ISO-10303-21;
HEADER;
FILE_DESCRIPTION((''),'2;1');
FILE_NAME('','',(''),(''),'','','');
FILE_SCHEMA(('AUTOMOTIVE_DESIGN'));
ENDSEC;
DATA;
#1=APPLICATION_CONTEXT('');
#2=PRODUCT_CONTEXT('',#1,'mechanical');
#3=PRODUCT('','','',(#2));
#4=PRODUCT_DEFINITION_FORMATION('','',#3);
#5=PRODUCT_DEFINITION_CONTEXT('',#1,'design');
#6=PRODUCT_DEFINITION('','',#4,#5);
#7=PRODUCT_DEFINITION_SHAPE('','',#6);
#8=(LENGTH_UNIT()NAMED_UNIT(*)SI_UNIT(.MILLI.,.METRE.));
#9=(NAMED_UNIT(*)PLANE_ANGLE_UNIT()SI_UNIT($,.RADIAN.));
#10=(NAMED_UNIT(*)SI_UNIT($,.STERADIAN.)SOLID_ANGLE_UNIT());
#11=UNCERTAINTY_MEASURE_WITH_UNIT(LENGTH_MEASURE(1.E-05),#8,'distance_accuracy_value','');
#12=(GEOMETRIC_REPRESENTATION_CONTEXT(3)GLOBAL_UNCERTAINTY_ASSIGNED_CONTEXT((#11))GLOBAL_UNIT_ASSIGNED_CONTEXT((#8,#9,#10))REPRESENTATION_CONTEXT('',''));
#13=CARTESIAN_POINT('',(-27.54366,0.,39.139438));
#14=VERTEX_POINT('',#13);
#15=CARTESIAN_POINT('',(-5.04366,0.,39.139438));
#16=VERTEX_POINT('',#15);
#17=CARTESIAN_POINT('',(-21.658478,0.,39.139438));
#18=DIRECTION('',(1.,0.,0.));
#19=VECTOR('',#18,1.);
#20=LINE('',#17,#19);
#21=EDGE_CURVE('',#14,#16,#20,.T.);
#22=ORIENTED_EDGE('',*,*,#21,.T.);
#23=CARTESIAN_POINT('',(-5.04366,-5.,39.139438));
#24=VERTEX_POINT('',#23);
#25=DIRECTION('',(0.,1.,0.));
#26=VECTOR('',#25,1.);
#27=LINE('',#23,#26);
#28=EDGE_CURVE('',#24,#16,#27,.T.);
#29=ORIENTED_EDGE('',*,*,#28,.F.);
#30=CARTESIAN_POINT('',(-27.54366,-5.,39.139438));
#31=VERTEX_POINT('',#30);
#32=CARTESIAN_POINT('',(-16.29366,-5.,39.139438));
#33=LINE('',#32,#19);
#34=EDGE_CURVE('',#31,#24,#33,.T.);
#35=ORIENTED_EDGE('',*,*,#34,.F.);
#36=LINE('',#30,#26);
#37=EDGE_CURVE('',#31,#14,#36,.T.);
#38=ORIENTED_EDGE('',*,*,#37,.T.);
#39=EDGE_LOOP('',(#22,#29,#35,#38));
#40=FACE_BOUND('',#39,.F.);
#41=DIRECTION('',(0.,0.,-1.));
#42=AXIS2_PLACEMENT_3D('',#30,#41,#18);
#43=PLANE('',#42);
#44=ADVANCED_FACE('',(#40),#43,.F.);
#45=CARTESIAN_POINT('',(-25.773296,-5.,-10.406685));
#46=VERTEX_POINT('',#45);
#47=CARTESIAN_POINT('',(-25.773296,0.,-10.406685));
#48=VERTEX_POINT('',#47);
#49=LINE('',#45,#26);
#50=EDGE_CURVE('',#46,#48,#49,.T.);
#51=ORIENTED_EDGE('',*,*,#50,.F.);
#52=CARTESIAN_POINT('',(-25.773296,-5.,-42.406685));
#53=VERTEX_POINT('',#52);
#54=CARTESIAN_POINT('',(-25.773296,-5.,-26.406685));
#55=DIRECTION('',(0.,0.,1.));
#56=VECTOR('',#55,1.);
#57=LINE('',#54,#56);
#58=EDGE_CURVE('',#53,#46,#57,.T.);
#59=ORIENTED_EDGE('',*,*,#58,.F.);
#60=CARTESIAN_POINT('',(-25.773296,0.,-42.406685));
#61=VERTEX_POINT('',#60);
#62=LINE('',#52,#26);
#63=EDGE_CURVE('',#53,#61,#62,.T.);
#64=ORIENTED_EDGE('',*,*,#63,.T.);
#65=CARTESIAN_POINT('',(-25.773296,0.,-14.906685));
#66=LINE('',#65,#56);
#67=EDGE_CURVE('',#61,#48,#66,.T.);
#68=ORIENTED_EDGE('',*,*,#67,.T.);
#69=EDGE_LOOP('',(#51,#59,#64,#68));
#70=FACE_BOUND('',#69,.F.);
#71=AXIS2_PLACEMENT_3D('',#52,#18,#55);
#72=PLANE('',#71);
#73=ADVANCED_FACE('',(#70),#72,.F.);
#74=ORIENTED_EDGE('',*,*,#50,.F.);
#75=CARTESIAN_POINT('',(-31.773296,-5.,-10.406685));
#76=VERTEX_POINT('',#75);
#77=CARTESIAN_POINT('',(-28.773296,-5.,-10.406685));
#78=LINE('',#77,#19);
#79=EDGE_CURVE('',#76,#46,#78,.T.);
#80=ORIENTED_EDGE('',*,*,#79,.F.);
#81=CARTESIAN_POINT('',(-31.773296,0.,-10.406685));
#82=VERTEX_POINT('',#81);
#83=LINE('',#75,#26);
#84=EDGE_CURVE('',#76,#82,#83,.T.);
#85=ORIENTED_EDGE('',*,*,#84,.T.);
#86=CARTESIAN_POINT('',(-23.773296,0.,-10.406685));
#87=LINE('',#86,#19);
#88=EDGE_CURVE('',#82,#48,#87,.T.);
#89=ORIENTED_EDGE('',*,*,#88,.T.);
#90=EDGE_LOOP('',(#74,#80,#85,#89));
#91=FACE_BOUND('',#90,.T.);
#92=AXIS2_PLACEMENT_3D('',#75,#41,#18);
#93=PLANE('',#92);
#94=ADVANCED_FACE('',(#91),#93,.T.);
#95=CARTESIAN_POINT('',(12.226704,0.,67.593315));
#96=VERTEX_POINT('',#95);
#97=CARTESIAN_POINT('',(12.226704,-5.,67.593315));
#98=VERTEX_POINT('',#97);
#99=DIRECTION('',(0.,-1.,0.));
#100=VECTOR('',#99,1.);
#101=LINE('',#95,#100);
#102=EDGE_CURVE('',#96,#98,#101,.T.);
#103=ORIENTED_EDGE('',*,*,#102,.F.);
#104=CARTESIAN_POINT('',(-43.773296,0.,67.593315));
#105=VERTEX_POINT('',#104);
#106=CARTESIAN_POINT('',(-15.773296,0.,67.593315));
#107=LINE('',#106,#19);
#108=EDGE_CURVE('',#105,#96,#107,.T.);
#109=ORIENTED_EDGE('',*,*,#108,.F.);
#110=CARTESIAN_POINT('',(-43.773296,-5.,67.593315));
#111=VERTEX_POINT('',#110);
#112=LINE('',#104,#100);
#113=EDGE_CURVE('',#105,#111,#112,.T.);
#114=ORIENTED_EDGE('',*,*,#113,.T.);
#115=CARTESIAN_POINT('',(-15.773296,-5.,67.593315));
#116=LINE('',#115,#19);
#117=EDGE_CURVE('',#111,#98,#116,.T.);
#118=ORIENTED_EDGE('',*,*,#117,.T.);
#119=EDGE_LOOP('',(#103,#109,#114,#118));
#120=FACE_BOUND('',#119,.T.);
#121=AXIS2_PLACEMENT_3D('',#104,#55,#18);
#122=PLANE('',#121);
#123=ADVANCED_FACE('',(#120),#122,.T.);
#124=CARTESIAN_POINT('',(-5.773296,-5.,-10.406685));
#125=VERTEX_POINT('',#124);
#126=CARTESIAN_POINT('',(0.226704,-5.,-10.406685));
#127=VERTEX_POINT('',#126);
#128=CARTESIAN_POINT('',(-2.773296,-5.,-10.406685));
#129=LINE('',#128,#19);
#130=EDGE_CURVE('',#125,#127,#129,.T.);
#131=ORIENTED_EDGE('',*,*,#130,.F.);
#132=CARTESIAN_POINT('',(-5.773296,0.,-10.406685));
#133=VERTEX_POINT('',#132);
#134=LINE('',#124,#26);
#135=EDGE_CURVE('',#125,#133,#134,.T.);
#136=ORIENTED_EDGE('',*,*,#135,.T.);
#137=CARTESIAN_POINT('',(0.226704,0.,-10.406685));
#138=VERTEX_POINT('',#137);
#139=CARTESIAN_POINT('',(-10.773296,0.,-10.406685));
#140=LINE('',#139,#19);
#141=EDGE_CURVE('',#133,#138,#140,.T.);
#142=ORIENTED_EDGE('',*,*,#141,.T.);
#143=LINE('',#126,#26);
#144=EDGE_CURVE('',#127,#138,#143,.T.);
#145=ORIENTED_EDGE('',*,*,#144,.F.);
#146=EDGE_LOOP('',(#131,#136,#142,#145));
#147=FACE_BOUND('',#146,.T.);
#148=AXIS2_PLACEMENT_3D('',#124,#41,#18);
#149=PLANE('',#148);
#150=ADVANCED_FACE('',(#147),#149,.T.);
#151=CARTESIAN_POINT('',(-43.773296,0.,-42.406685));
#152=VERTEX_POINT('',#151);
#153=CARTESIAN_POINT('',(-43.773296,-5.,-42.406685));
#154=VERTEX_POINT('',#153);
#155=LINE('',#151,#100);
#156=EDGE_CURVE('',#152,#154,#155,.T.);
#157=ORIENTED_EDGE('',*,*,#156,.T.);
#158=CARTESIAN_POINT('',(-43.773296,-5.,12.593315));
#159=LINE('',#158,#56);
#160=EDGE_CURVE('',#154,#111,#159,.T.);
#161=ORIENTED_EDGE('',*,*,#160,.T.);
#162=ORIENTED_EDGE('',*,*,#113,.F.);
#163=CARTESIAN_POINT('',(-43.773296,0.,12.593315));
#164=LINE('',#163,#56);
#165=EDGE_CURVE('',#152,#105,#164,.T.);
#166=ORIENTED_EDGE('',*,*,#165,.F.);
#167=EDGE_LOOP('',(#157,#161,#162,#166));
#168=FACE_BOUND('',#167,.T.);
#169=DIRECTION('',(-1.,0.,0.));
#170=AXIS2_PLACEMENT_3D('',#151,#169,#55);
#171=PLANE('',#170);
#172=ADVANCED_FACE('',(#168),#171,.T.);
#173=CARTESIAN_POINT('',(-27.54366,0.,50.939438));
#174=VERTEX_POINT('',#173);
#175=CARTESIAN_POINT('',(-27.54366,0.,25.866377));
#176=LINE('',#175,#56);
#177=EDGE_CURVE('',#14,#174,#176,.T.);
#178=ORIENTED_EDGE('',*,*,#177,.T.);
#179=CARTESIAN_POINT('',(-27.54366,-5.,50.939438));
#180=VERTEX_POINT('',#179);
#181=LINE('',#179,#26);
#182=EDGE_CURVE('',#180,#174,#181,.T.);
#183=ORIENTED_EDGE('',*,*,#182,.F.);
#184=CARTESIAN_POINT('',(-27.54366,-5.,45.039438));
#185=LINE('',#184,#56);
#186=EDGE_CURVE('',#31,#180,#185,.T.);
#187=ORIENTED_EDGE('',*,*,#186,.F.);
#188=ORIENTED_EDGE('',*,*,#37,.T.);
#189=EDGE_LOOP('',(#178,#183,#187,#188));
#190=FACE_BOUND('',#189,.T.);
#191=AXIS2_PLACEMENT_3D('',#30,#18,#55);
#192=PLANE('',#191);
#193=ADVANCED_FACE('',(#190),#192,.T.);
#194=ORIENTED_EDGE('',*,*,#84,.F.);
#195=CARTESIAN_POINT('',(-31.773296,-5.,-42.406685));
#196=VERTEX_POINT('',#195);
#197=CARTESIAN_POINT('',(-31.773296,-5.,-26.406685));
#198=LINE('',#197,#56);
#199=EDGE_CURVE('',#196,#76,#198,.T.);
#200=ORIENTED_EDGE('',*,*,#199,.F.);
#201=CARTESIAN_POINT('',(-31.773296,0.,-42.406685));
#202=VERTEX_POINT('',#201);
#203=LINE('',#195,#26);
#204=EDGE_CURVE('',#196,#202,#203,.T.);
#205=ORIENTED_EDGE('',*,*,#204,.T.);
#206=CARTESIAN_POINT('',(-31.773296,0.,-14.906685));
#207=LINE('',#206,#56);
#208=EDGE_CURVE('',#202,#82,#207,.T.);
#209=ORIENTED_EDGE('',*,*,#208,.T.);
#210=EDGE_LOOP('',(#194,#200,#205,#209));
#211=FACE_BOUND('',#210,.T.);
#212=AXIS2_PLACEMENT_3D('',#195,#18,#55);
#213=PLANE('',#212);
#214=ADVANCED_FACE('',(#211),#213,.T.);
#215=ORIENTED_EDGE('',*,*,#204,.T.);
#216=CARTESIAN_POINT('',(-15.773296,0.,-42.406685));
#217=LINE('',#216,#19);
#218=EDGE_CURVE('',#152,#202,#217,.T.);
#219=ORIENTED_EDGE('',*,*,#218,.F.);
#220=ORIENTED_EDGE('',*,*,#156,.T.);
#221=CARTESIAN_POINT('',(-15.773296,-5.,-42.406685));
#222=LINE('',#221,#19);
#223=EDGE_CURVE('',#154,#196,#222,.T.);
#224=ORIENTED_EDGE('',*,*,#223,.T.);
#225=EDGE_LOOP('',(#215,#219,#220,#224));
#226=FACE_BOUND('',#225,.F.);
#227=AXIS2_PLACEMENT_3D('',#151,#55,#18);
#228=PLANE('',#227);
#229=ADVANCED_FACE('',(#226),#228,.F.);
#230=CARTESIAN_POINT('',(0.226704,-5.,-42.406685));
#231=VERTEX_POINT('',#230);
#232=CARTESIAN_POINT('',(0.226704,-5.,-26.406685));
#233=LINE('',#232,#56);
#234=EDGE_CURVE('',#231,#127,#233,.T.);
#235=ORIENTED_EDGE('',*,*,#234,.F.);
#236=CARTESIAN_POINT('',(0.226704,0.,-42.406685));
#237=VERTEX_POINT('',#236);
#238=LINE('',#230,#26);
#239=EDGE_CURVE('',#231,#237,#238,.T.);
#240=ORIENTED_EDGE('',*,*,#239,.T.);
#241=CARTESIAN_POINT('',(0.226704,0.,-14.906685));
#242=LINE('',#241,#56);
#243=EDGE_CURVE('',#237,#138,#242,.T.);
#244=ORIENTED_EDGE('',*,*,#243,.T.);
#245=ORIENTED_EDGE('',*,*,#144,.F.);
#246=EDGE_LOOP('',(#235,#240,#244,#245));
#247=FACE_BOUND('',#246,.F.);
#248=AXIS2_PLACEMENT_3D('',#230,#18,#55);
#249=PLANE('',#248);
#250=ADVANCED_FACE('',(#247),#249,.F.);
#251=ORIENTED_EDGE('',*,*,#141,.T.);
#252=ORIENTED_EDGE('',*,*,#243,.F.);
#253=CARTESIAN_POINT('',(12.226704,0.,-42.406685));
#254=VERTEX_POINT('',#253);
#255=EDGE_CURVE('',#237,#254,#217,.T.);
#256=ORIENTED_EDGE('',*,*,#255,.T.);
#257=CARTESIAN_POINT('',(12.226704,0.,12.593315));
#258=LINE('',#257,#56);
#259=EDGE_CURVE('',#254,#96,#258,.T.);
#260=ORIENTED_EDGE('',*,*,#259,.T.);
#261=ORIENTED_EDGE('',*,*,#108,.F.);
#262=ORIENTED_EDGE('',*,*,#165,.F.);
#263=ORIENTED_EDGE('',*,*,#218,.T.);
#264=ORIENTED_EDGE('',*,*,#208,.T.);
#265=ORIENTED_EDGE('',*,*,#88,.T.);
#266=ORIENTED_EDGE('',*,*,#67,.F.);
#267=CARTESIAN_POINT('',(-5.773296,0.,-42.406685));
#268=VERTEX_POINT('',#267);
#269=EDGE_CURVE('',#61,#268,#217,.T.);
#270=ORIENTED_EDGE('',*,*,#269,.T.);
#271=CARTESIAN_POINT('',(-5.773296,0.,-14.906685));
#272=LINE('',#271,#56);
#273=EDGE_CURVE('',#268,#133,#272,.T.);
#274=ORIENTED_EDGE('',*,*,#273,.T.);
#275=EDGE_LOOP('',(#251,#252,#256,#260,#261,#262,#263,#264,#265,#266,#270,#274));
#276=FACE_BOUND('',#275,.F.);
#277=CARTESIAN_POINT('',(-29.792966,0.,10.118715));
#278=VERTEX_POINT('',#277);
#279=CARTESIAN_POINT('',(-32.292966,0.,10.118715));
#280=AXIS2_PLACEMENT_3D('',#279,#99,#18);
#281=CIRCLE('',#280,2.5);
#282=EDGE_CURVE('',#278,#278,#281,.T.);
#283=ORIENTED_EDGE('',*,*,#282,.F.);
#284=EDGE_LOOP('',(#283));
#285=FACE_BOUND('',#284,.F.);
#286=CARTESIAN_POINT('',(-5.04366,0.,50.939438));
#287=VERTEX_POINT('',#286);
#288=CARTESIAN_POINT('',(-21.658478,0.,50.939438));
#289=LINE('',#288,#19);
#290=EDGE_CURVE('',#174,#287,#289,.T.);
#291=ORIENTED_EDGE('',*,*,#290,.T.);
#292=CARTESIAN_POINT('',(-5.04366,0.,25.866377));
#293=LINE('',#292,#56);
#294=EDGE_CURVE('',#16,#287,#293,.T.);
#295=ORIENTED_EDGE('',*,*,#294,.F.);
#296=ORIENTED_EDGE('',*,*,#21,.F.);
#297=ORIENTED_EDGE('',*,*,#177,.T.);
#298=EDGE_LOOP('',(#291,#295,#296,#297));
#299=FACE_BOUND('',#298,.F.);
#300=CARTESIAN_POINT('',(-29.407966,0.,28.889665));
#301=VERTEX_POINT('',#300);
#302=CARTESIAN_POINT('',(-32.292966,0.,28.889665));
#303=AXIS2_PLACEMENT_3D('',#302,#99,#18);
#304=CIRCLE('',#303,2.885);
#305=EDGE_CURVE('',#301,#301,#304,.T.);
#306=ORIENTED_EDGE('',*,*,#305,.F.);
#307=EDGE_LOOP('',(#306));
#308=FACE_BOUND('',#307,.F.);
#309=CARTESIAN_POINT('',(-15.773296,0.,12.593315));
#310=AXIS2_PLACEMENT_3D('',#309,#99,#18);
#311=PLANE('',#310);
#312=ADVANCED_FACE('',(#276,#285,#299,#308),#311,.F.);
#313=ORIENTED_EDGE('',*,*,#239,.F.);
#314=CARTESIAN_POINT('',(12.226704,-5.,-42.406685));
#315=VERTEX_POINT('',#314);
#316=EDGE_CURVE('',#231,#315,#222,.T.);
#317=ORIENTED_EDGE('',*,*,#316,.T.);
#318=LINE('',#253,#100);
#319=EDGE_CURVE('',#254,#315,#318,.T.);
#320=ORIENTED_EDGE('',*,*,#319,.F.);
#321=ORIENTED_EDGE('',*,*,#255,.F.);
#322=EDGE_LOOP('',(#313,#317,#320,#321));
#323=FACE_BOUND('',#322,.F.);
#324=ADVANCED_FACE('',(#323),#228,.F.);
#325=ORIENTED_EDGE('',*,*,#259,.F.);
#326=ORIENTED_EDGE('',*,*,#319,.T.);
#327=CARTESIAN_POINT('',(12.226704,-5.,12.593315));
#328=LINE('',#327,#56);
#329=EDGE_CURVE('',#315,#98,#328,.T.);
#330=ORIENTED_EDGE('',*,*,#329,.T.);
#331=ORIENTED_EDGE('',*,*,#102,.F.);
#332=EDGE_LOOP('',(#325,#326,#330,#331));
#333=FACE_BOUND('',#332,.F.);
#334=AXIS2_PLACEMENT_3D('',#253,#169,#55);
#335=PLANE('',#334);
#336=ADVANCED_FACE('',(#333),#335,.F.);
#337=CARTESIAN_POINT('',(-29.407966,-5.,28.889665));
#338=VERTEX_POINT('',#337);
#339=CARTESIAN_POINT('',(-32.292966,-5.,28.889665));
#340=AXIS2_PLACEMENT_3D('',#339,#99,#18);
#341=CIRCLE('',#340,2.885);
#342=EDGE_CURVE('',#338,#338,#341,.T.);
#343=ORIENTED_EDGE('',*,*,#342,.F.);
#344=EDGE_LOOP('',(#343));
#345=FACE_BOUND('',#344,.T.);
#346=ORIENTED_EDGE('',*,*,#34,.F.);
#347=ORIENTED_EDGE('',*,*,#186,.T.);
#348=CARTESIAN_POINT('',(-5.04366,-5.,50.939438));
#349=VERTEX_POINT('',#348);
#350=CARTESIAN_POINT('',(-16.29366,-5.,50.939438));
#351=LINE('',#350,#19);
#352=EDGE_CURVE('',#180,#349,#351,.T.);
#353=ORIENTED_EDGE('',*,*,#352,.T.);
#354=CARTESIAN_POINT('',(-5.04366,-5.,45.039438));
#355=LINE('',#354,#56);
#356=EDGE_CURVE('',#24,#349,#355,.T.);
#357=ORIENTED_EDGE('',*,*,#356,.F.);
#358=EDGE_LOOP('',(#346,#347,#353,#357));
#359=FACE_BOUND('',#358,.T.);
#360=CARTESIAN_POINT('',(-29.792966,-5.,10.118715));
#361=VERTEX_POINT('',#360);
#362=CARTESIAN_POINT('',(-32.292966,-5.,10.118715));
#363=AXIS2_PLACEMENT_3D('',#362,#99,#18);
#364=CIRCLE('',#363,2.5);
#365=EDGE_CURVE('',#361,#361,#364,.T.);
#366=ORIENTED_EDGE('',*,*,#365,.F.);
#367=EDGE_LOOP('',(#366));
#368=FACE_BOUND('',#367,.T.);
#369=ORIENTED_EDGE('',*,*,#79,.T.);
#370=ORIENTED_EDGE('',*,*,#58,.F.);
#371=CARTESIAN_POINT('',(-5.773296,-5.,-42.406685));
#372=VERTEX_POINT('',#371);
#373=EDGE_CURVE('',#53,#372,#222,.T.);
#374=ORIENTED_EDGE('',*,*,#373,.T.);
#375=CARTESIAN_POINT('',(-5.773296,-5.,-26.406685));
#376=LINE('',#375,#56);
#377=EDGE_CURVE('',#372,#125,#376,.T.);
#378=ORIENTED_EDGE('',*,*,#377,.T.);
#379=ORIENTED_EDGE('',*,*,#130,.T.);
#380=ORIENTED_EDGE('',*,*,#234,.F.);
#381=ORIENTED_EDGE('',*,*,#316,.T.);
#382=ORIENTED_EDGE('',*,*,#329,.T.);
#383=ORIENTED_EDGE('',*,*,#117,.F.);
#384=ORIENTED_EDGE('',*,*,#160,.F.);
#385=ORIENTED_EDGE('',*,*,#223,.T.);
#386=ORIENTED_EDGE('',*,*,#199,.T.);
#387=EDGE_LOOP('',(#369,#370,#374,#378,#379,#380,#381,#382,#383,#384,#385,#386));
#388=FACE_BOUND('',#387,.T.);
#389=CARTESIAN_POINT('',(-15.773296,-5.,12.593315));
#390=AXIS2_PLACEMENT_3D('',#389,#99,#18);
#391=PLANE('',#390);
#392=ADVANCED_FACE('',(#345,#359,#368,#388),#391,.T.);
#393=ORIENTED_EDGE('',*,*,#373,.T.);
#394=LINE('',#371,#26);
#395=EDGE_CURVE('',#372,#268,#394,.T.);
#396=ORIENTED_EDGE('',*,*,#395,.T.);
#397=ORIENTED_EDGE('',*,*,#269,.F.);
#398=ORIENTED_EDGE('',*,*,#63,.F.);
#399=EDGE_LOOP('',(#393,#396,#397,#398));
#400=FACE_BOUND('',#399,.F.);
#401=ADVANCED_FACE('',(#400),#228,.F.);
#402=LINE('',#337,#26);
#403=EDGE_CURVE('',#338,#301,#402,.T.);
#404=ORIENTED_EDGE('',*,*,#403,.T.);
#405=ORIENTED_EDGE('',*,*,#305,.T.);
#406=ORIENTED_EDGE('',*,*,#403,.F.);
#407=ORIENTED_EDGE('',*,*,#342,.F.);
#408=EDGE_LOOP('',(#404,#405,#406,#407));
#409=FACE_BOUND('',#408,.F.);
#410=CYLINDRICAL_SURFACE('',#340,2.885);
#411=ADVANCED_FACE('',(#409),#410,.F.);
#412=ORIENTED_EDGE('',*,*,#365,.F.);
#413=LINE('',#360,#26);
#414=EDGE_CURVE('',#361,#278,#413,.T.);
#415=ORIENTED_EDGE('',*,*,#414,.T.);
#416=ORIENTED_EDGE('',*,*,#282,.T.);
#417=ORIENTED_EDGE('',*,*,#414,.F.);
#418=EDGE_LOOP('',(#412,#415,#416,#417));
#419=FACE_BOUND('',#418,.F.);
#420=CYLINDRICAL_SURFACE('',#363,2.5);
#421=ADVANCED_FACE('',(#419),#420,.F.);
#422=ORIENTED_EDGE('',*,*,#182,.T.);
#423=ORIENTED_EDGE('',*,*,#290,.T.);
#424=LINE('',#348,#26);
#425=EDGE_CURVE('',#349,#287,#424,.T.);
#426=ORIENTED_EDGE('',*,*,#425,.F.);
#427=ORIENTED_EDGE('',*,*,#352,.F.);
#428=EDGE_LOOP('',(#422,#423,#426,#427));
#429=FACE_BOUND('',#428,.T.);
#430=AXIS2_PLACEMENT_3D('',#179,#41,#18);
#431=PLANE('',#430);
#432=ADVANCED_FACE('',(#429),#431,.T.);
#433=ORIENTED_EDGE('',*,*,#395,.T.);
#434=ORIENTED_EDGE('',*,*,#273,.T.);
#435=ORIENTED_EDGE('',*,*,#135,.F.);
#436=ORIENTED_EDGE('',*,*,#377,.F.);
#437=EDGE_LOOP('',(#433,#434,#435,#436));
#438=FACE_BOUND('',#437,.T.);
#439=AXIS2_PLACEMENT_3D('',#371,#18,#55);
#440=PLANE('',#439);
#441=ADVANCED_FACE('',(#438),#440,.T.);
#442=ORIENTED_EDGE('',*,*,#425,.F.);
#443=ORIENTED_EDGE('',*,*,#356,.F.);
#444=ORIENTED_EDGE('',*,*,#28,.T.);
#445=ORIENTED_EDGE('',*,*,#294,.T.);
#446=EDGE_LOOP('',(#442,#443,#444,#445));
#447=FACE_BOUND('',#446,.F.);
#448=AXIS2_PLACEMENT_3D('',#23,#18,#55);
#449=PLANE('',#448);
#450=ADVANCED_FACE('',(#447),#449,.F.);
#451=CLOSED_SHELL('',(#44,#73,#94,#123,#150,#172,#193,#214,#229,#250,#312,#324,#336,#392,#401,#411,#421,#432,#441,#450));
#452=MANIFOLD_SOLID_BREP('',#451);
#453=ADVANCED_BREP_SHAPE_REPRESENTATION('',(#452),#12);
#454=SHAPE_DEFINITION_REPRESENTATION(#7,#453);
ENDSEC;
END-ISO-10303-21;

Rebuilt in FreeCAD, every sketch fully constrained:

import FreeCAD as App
import Part
import Sketcher
from FreeCAD import Vector
Q = App.Units.Quantity


def add_polygon(sketch, points):
    """Adds a closed chain of lines whose ends are joined by coincident constraints."""
    first, n = sketch.GeometryCount, len(points)
    for a, b in zip(points, points[1:] + points[:1]):
        sketch.addGeometry(Part.LineSegment(App.Vector(*a, 0), App.Vector(*b, 0)), False)
    for i in range(n):
        sketch.addConstraint(Sketcher.Constraint("Coincident", first + i, 2, first + (i + 1) % n, 1))

doc = App.newDocument("Part")
params = doc.addObject("Spreadsheet::Sheet", "Params")
for row, (alias, value) in enumerate([
    ("sketch1_width", "56 mm"),
    ("sketch1_height", "110 mm"),
    ("pad1_length", "5 mm"),
    ("sketch2_diameter", "5 mm"),
    ("sketch2_diameter2", "5.77 mm"),
    ("sketch2_width", "6 mm"),
    ("sketch2_height", "32 mm"),
    ("sketch2_width2", "22.5 mm"),
    ("pocket1_length", "25 mm"),
], start=1):
    params.set(f"A{row}", alias)
    params.set(f"B{row}", "=" + value)
    params.setAlias(f"B{row}", alias)

body = doc.addObject("PartDesign::Body", "Body")

# Sketch on XZ plane
sketch1 = body.newObject("Sketcher::SketchObject", "Sketch")
sketch1.AttachmentSupport = (doc.getObject("XZ_Plane"), [""])
sketch1.MapMode = "FlatFace"
add_polygon(sketch1, [(-44, 68), (-44, -42), (12, -42), (12, 68)])  # lines 0-3
sketch1.addConstraint([
    Sketcher.Constraint("Vertical", 0),
    Sketcher.Constraint("Horizontal", 1),
    Sketcher.Constraint("Vertical", 2),
    Sketcher.Constraint("Horizontal", 3),
    Sketcher.Constraint("DistanceX", 1, 1, 1, 2, Q("56 mm")),
    Sketcher.Constraint("DistanceY", 0, 2, 0, 1, Q("110 mm")),
    Sketcher.Constraint("DistanceX", 0, 2, -1, 1, Q("43.773296 mm")),
    Sketcher.Constraint("DistanceY", 0, 2, -1, 1, Q("42.406685 mm")),
])
sketch1.setExpression("Constraints[8]", "Params.sketch1_width")
sketch1.setExpression("Constraints[9]", "Params.sketch1_height")
pad1 = body.newObject("PartDesign::Pad", "Pad")
pad1.Profile = sketch1
pad1.setExpression("Length", "Params.pad1_length")

# Sketch on XZ plane
sketch2 = body.newObject("Sketcher::SketchObject", "Sketch001")
sketch2.AttachmentSupport = (doc.getObject("XZ_Plane"), [""])
sketch2.MapMode = "FlatFace"
sketch2.AttachmentOffset = App.Placement(Vector(0, 0, 5), App.Rotation())
add_polygon(sketch2, [(-5.8, -10.4), (-5.8, -42.4), (0.2, -42.4), (0.2, -10.4)])  # lines 0-3
add_polygon(sketch2, [(-31.8, -10.4), (-31.8, -42.4), (-25.8, -42.4), (-25.8, -10.4)])  # lines 4-7
add_polygon(sketch2, [(-27.5, 50.9), (-27.5, 39.1), (-5, 39.1), (-5, 50.9)])  # lines 8-11
sketch2.addGeometry(Part.Circle(Vector(-32.3, 28.9, 0), Vector(0, 0, 1), 2.9), False)  # 12
sketch2.addGeometry(Part.Circle(Vector(-32.3, 10.1, 0), Vector(0, 0, 1), 2.5), False)  # 13
sketch2.addConstraint([
    Sketcher.Constraint("Vertical", 0),
    Sketcher.Constraint("Horizontal", 1),
    Sketcher.Constraint("Vertical", 2),
    Sketcher.Constraint("Horizontal", 3),
    Sketcher.Constraint("Vertical", 4),
    Sketcher.Constraint("Horizontal", 5),
    Sketcher.Constraint("Vertical", 6),
    Sketcher.Constraint("Horizontal", 7),
    Sketcher.Constraint("Vertical", 8),
    Sketcher.Constraint("Horizontal", 9),
    Sketcher.Constraint("Vertical", 10),
    Sketcher.Constraint("Horizontal", 11),
    Sketcher.Constraint("Horizontal", 1, 2, 4, 2),
    Sketcher.Constraint("Horizontal", 3, 2, 6, 2),
    Sketcher.Constraint("Vertical", 12, 3, 13, 3),
    Sketcher.Constraint("Equal", 3, 5),
    Sketcher.Constraint("Diameter", 13, Q("5 mm")),
    Sketcher.Constraint("Diameter", 12, Q("5.77 mm")),
    Sketcher.Constraint("DistanceX", 1, 1, 1, 2, Q("6 mm")),
    Sketcher.Constraint("DistanceY", 0, 2, 0, 1, Q("32 mm")),
    Sketcher.Constraint("DistanceX", 9, 1, 9, 2, Q("22.5 mm")),
    Sketcher.Constraint("DistanceY", 8, 2, 8, 1, Q("11.8 mm")),
    Sketcher.Constraint("DistanceX", 4, 2, 0, 2, Q("26 mm")),
    Sketcher.Constraint("DistanceY", 0, 2, 13, 3, Q("52.5254 mm")),
    Sketcher.Constraint("DistanceX", 8, 2, -1, 1, Q("27.54366 mm")),
    Sketcher.Constraint("DistanceY", -1, 1, 10, 2, Q("50.939438 mm")),
    Sketcher.Constraint("DistanceY", 13, 3, 12, 3, Q("18.77095 mm")),
    Sketcher.Constraint("DistanceX", 13, 3, 0, 2, Q("26.51967 mm")),
    Sketcher.Constraint("DistanceX", 12, 3, -1, 1, Q("32.292966 mm")),
    Sketcher.Constraint("DistanceY", -1, 1, 12, 3, Q("28.889665 mm")),
])
sketch2.setExpression("Constraints[28]", "Params.sketch2_diameter")
sketch2.setExpression("Constraints[29]", "Params.sketch2_diameter2")
sketch2.setExpression("Constraints[30]", "Params.sketch2_width")
sketch2.setExpression("Constraints[31]", "Params.sketch2_height")
sketch2.setExpression("Constraints[32]", "Params.sketch2_width2")
pocket1 = body.newObject("PartDesign::Pocket", "Pocket")
pocket1.Profile = sketch2
pocket1.setExpression("Length", "Params.pocket1_length")

doc.recompute()
